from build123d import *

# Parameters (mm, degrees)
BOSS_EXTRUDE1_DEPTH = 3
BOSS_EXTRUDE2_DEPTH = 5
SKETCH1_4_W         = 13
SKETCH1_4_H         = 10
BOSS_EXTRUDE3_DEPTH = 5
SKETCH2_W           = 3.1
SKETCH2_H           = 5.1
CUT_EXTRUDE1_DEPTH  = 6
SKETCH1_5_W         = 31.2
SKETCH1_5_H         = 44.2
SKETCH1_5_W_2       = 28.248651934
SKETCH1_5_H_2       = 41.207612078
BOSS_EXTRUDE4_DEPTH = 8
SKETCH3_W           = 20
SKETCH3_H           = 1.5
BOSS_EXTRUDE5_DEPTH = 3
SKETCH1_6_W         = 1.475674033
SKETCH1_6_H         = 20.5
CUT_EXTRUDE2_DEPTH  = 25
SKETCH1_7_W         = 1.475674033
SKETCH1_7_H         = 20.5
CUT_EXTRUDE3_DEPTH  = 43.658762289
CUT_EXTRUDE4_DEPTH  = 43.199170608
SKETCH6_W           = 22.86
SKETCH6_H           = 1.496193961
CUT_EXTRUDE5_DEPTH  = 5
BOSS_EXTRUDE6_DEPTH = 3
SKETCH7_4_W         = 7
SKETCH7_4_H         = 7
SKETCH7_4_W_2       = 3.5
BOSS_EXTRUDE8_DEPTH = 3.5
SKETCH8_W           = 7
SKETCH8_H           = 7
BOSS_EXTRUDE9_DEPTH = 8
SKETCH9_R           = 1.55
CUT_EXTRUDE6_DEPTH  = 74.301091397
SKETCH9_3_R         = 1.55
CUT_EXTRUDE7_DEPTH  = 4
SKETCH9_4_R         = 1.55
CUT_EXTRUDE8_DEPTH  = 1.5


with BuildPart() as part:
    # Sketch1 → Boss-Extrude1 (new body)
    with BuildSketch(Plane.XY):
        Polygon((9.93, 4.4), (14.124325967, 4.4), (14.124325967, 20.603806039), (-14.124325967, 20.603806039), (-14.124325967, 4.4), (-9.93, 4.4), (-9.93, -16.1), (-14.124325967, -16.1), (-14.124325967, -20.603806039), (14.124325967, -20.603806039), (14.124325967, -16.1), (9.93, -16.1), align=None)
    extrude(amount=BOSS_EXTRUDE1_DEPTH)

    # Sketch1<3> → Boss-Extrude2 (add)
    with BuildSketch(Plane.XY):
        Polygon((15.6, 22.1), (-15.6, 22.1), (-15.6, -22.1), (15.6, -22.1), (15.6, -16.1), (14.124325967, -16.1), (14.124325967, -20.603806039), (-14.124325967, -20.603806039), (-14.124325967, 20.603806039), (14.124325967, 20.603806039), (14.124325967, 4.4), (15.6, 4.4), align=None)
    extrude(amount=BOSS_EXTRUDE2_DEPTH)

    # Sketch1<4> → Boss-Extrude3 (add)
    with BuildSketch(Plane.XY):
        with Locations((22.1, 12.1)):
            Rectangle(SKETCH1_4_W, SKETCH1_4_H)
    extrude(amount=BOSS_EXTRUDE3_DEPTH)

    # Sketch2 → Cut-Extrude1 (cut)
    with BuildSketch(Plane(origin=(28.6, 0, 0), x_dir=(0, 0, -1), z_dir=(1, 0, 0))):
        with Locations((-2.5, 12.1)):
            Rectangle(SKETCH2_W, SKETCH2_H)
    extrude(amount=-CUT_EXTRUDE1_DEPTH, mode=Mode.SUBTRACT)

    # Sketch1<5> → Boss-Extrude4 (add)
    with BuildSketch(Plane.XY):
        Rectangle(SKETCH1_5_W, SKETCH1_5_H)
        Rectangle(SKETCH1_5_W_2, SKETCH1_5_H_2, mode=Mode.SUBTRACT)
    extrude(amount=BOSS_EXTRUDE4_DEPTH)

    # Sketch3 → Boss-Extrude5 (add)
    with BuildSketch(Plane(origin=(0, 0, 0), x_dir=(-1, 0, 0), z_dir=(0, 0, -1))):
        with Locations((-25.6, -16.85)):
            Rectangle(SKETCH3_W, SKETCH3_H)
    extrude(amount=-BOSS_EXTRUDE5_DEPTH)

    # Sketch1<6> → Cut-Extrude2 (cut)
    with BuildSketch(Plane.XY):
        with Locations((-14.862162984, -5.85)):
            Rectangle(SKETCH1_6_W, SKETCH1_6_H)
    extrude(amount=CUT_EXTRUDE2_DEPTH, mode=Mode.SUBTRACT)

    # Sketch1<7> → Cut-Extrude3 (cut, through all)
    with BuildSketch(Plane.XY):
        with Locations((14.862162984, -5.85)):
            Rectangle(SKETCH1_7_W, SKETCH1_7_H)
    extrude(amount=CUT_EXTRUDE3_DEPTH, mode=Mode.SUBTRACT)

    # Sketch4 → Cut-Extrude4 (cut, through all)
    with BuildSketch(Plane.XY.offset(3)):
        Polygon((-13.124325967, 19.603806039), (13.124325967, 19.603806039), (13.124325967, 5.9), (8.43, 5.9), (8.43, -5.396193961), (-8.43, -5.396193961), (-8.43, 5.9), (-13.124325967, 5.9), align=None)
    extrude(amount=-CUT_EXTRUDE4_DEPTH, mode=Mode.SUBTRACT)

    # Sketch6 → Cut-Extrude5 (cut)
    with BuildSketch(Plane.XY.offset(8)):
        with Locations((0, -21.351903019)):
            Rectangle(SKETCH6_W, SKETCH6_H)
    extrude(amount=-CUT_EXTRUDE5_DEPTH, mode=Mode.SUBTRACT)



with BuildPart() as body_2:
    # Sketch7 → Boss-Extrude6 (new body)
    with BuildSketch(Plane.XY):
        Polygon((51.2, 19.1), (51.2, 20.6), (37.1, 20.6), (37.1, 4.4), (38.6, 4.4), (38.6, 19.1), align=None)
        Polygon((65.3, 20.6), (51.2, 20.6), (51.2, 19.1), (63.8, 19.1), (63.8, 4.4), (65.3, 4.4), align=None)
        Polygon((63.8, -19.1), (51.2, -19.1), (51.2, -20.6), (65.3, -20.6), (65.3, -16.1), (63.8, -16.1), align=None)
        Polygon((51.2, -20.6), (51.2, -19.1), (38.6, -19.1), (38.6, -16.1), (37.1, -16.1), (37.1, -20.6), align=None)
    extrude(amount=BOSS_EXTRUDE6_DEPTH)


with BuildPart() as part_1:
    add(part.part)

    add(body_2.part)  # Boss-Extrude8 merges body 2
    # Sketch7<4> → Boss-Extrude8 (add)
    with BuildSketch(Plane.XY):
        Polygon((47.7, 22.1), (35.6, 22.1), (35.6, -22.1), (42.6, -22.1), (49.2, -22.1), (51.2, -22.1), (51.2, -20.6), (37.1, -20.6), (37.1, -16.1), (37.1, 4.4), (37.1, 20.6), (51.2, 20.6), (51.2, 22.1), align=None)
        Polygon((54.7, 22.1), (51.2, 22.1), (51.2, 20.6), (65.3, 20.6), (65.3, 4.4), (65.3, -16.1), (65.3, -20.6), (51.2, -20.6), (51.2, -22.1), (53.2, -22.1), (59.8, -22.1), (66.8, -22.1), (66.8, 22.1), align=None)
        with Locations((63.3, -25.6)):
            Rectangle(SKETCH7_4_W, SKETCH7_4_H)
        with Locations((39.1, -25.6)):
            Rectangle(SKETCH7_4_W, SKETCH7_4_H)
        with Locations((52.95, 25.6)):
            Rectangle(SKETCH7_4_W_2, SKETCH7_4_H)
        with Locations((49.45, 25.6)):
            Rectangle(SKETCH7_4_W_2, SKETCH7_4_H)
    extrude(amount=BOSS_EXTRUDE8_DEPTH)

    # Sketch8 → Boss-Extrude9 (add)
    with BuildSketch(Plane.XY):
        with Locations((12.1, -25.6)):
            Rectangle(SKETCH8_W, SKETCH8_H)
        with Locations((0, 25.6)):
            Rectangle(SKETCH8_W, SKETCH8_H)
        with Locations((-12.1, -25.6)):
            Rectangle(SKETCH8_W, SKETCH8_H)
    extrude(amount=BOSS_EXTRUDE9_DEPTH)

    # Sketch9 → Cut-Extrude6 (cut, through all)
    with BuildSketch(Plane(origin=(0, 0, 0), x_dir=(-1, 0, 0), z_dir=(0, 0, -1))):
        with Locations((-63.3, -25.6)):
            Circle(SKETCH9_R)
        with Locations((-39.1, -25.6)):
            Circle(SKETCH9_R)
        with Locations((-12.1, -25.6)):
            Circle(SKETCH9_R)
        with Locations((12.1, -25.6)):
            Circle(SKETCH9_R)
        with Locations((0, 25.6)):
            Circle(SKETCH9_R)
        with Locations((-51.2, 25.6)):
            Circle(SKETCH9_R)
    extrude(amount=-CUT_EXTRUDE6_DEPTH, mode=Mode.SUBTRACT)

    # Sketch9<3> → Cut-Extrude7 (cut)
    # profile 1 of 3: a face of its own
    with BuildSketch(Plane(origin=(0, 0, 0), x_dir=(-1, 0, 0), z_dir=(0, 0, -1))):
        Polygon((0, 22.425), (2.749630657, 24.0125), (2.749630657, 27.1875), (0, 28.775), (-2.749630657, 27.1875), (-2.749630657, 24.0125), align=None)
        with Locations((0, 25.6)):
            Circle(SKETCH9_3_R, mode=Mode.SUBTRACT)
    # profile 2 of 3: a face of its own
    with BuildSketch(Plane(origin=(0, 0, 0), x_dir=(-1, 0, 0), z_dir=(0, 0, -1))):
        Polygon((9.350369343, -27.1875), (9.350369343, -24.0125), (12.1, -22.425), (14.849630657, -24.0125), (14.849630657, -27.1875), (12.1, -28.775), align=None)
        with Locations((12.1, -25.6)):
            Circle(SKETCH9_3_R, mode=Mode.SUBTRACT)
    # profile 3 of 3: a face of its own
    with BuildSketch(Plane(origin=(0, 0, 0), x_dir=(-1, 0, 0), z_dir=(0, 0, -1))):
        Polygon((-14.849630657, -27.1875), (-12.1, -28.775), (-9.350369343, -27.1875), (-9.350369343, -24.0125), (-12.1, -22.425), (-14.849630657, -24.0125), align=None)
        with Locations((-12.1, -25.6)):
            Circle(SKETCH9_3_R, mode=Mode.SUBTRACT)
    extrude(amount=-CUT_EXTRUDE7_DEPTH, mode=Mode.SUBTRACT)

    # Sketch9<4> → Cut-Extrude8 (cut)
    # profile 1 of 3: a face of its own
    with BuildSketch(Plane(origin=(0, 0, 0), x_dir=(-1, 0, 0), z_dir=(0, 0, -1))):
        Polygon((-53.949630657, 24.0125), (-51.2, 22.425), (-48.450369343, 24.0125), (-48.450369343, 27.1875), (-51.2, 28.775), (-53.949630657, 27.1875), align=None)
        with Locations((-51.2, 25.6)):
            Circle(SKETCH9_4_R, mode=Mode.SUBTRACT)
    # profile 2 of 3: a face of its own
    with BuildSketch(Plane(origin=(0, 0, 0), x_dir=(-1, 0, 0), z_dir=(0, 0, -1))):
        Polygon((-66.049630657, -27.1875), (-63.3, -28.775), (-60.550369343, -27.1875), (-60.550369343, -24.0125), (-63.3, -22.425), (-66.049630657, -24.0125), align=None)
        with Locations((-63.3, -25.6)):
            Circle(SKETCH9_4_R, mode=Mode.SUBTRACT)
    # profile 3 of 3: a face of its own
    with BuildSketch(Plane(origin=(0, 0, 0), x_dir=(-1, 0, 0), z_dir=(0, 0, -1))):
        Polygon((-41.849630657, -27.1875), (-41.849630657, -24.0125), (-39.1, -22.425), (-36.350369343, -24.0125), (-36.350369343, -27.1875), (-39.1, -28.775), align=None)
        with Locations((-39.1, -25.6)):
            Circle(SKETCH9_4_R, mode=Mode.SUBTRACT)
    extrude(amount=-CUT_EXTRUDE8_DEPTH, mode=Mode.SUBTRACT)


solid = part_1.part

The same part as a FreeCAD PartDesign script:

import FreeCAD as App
import Part
import Sketcher
Q = App.Units.Quantity


def add_polygon(sketch, points):
    """Adds a closed chain of lines whose ends are joined by coincident constraints."""
    first, n = sketch.GeometryCount, len(points)
    for a, b in zip(points, points[1:] + points[:1]):
        sketch.addGeometry(Part.LineSegment(App.Vector(*a, 0), App.Vector(*b, 0)), False)
    for i in range(n):
        sketch.addConstraint(Sketcher.Constraint("Coincident", first + i, 2, first + (i + 1) % n, 1))

doc = App.newDocument("Part")
body = doc.addObject("PartDesign::Body", "Body")

# Sketch on XY plane
sketch1 = body.newObject("Sketcher::SketchObject", "Sketch")
sketch1.AttachmentSupport = (doc.getObject("XY_Plane"), [""])
sketch1.MapMode = "FlatFace"
add_polygon(sketch1, [(9.93, 4.4), (14.124326, 4.4), (14.124326, 20.603806), (-14.124326, 20.603806), (-14.124326, 4.4), (-9.93, 4.4), (-9.93, -16.1), (-14.124326, -16.1), (-14.124326, -20.603806), (14.124326, -20.603806), (14.124326, -16.1), (9.93, -16.1)])  # lines 0-11
sketch1.addConstraint(Sketcher.Constraint("Horizontal", 0))
sketch1.addConstraint(Sketcher.Constraint("Vertical", 1))
sketch1.addConstraint(Sketcher.Constraint("Horizontal", 2))
sketch1.addConstraint(Sketcher.Constraint("Vertical", 3))
sketch1.addConstraint(Sketcher.Constraint("Horizontal", 4))
sketch1.addConstraint(Sketcher.Constraint("Vertical", 5))
sketch1.addConstraint(Sketcher.Constraint("Horizontal", 6))
sketch1.addConstraint(Sketcher.Constraint("Vertical", 7))
sketch1.addConstraint(Sketcher.Constraint("Horizontal", 8))
sketch1.addConstraint(Sketcher.Constraint("Vertical", 9))
sketch1.addConstraint(Sketcher.Constraint("Horizontal", 10))
sketch1.addConstraint(Sketcher.Constraint("Vertical", 11))
sketch1.addConstraint(Sketcher.Constraint("Symmetric", 1, 2, 7, 2, -1, 1))
sketch1.addConstraint(Sketcher.Constraint("Symmetric", 0, 2, 3, 2, -2))
sketch1.addConstraint(Sketcher.Constraint("Symmetric", 6, 2, 9, 2, -2))
sketch1.addConstraint(Sketcher.Constraint("Equal", 0, 4))
sketch1.addConstraint(Sketcher.Constraint("DistanceY", 5, 2, 5, 1, 20.5))
sketch1.addConstraint(Sketcher.Constraint("DistanceY", -1, 1, 0, 2, 4.4))
sketch1.addConstraint(Sketcher.Constraint("DistanceX", 4, 2, -1, 1, 9.93))
sketch1.addConstraint(Sketcher.Constraint("DistanceX", 2, 2, 2, 1, 28.248652))
sketch1.addConstraint(Sketcher.Constraint("DistanceY", 1, 1, 1, 2, 16.203806))
pad1 = body.newObject("PartDesign::Pad", "Pad")
pad1.Profile = sketch1
pad1.Length = 3

# Sketch on XY plane
sketch2 = body.newObject("Sketcher::SketchObject", "Sketch001")
sketch2.AttachmentSupport = (doc.getObject("XY_Plane"), [""])
sketch2.MapMode = "FlatFace"
add_polygon(sketch2, [(15.6, 22.1), (-15.6, 22.1), (-15.6, -22.1), (15.6, -22.1), (15.6, -16.1), (14.124326, -16.1), (14.124326, -20.603806), (-14.124326, -20.603806), (-14.124326, 20.603806), (14.124326, 20.603806), (14.124326, 4.4), (15.6, 4.4)])  # lines 0-11
sketch2.addConstraint(Sketcher.Constraint("Horizontal", 0))
sketch2.addConstraint(Sketcher.Constraint("Vertical", 1))
sketch2.addConstraint(Sketcher.Constraint("Horizontal", 2))
sketch2.addConstraint(Sketcher.Constraint("Vertical", 3))
sketch2.addConstraint(Sketcher.Constraint("Horizontal", 4))
sketch2.addConstraint(Sketcher.Constraint("Vertical", 5))
sketch2.addConstraint(Sketcher.Constraint("Horizontal", 6))
sketch2.addConstraint(Sketcher.Constraint("Vertical", 7))
sketch2.addConstraint(Sketcher.Constraint("Horizontal", 8))
sketch2.addConstraint(Sketcher.Constraint("Vertical", 9))
sketch2.addConstraint(Sketcher.Constraint("Horizontal", 10))
sketch2.addConstraint(Sketcher.Constraint("Vertical", 11))
sketch2.addConstraint(Sketcher.Constraint("Symmetric", 0, 2, 2, 2, -1, 1))
sketch2.addConstraint(Sketcher.Constraint("Symmetric", 5, 2, 7, 2, -1, 1))
sketch2.addConstraint(Sketcher.Constraint("Vertical", 5, 2, 8, 2))
sketch2.addConstraint(Sketcher.Constraint("Vertical", 3, 2, 10, 2))
sketch2.addConstraint(Sketcher.Constraint("DistanceY", 3, 1, 3, 2, 6.0))
sketch2.addConstraint(Sketcher.Constraint("DistanceX", 0, 2, 0, 1, 31.2))
sketch2.addConstraint(Sketcher.Constraint("DistanceY", 1, 2, 1, 1, 44.2))
sketch2.addConstraint(Sketcher.Constraint("DistanceY", 11, 1, 11, 2, 17.7))
sketch2.addConstraint(Sketcher.Constraint("DistanceX", 6, 2, 6, 1, 28.248652))
sketch2.addConstraint(Sketcher.Constraint("DistanceY", 5, 2, 5, 1, 4.503806))
pad2 = body.newObject("PartDesign::Pad", "Pad001")
pad2.Profile = sketch2
pad2.Length = 5

# Sketch on XY plane
sketch3 = body.newObject("Sketcher::SketchObject", "Sketch002")
sketch3.AttachmentSupport = (doc.getObject("XY_Plane"), [""])
sketch3.MapMode = "FlatFace"
add_polygon(sketch3, [(15.6, 17.1), (15.6, 7.1), (28.6, 7.1), (28.6, 17.1)])  # lines 0-3
sketch3.addConstraint(Sketcher.Constraint("Vertical", 0))
sketch3.addConstraint(Sketcher.Constraint("Horizontal", 1))
sketch3.addConstraint(Sketcher.Constraint("Vertical", 2))
sketch3.addConstraint(Sketcher.Constraint("Horizontal", 3))
sketch3.addConstraint(Sketcher.Constraint("DistanceX", 1, 1, 1, 2, 13.0))
sketch3.addConstraint(Sketcher.Constraint("DistanceY", 0, 2, 0, 1, 10.0))
sketch3.addConstraint(Sketcher.Constraint("DistanceX", -1, 1, 0, 2, 15.6))
sketch3.addConstraint(Sketcher.Constraint("DistanceY", -1, 1, 0, 2, 7.1))
pad3 = body.newObject("PartDesign::Pad", "Pad002")
pad3.Profile = sketch3
pad3.Length = 5

# Sketch on YZ plane
sketch4 = body.newObject("Sketcher::SketchObject", "Sketch003")
sketch4.AttachmentSupport = (doc.getObject("YZ_Plane"), [""])
sketch4.MapMode = "FlatFace"
sketch4.AttachmentOffset = App.Placement(App.Vector(0, 0, 28.6), App.Rotation())
add_polygon(sketch4, [(14.65, 4.05), (9.55, 4.05), (9.55, 0.95), (14.65, 0.95)])  # lines 0-3
sketch4.addConstraint(Sketcher.Constraint("Horizontal", 0))
sketch4.addConstraint(Sketcher.Constraint("Vertical", 1))
sketch4.addConstraint(Sketcher.Constraint("Horizontal", 2))
sketch4.addConstraint(Sketcher.Constraint("Vertical", 3))
sketch4.addConstraint(Sketcher.Constraint("DistanceX", 0, 2, 0, 1, 5.1))
sketch4.addConstraint(Sketcher.Constraint("DistanceY", 1, 2, 1, 1, 3.1))
sketch4.addConstraint(Sketcher.Constraint("DistanceX", -1, 1, 0, 2, 9.55))
sketch4.addConstraint(Sketcher.Constraint("DistanceY", -1, 1, 0, 2, 4.05))
pocket1 = body.newObject("PartDesign::Pocket", "Pocket")
pocket1.Profile = sketch4
pocket1.Length = 6

# Sketch on XY plane
sketch5 = body.newObject("Sketcher::SketchObject", "Sketch004")
sketch5.AttachmentSupport = (doc.getObject("XY_Plane"), [""])
sketch5.MapMode = "FlatFace"
add_polygon(sketch5, [(-15.6, 22.1), (-15.6, -22.1), (15.6, -22.1), (15.6, 22.1)])  # lines 0-3
add_polygon(sketch5, [(14.124326, -20.603806), (-14.124326, -20.603806), (-14.124326, 20.603806), (14.124326, 20.603806)])  # lines 4-7
sketch5.addConstraint(Sketcher.Constraint("Vertical", 0))
sketch5.addConstraint(Sketcher.Constraint("Horizontal", 1))
sketch5.addConstraint(Sketcher.Constraint("Vertical", 2))
sketch5.addConstraint(Sketcher.Constraint("Horizontal", 3))
sketch5.addConstraint(Sketcher.Constraint("Horizontal", 4))
sketch5.addConstraint(Sketcher.Constraint("Vertical", 5))
sketch5.addConstraint(Sketcher.Constraint("Horizontal", 6))
sketch5.addConstraint(Sketcher.Constraint("Vertical", 7))
sketch5.addConstraint(Sketcher.Constraint("Symmetric", 0, 2, 2, 2, -1, 1))
sketch5.addConstraint(Sketcher.Constraint("Symmetric", 4, 2, 6, 2, -1, 1))
sketch5.addConstraint(Sketcher.Constraint("DistanceX", 1, 1, 1, 2, 31.2))
sketch5.addConstraint(Sketcher.Constraint("DistanceY", 0, 2, 0, 1, 44.2))
sketch5.addConstraint(Sketcher.Constraint("DistanceX", 4, 2, 4, 1, 28.248652))
sketch5.addConstraint(Sketcher.Constraint("DistanceY", 5, 1, 5, 2, 41.207612))
pad4 = body.newObject("PartDesign::Pad", "Pad003")
pad4.Profile = sketch5
pad4.Length = 8

# Sketch on XY plane
sketch6 = body.newObject("Sketcher::SketchObject", "Sketch005")
sketch6.AttachmentSupport = (doc.getObject("XY_Plane"), [""])
sketch6.MapMode = "FlatFace"
add_polygon(sketch6, [(35.6, -16.1), (35.6, -17.6), (15.6, -17.6), (15.6, -16.1)])  # lines 0-3
sketch6.addConstraint(Sketcher.Constraint("Vertical", 0))
sketch6.addConstraint(Sketcher.Constraint("Horizontal", 1))
sketch6.addConstraint(Sketcher.Constraint("Vertical", 2))
sketch6.addConstraint(Sketcher.Constraint("Horizontal", 3))
sketch6.addConstraint(Sketcher.Constraint("DistanceX", 1, 2, 1, 1, 20.0))
sketch6.addConstraint(Sketcher.Constraint("DistanceY", 0, 2, 0, 1, 1.5))
sketch6.addConstraint(Sketcher.Constraint("DistanceX", -1, 1, 0, 2, 35.6))
sketch6.addConstraint(Sketcher.Constraint("DistanceY", 0, 2, -1, 1, 17.6))
pad5 = body.newObject("PartDesign::Pad", "Pad004")
pad5.Profile = sketch6
pad5.Length = 3

# Sketch on XY plane
sketch7 = body.newObject("Sketcher::SketchObject", "Sketch006")
sketch7.AttachmentSupport = (doc.getObject("XY_Plane"), [""])
sketch7.MapMode = "FlatFace"
add_polygon(sketch7, [(-15.6, 4.4), (-15.6, -16.1), (-14.124326, -16.1), (-14.124326, 4.4)])  # lines 0-3
sketch7.addConstraint(Sketcher.Constraint("Vertical", 0))
sketch7.addConstraint(Sketcher.Constraint("Horizontal", 1))
sketch7.addConstraint(Sketcher.Constraint("Vertical", 2))
sketch7.addConstraint(Sketcher.Constraint("Horizontal", 3))
sketch7.addConstraint(Sketcher.Constraint("DistanceY", 0, 2, 0, 1, 20.5))
sketch7.addConstraint(Sketcher.Constraint("DistanceX", 0, 2, -1, 1, 15.6))
sketch7.addConstraint(Sketcher.Constraint("DistanceY", 0, 2, -1, 1, 16.1))
sketch7.addConstraint(Sketcher.Constraint("DistanceX", 1, 1, 1, 2, 1.475674))
pocket2 = body.newObject("PartDesign::Pocket", "Pocket001")
pocket2.Profile = sketch7
pocket2.Length = 25
pocket2.Reversed = True

# Sketch on XY plane
sketch8 = body.newObject("Sketcher::SketchObject", "Sketch007")
sketch8.AttachmentSupport = (doc.getObject("XY_Plane"), [""])
sketch8.MapMode = "FlatFace"
add_polygon(sketch8, [(14.124326, 4.4), (14.124326, -16.1), (15.6, -16.1), (15.6, 4.4)])  # lines 0-3
sketch8.addConstraint(Sketcher.Constraint("Vertical", 0))
sketch8.addConstraint(Sketcher.Constraint("Horizontal", 1))
sketch8.addConstraint(Sketcher.Constraint("Vertical", 2))
sketch8.addConstraint(Sketcher.Constraint("Horizontal", 3))
sketch8.addConstraint(Sketcher.Constraint("DistanceY", 0, 2, 0, 1, 20.5))
sketch8.addConstraint(Sketcher.Constraint("DistanceY", 0, 2, -1, 1, 16.1))
sketch8.addConstraint(Sketcher.Constraint("DistanceX", -1, 1, 1, 2, 15.6))
sketch8.addConstraint(Sketcher.Constraint("DistanceX", 1, 1, 1, 2, 1.475674))
pocket3 = body.newObject("PartDesign::Pocket", "Pocket002")
pocket3.Profile = sketch8
pocket3.Type = "ThroughAll"
pocket3.Reversed = True

# Sketch on XY plane
sketch9 = body.newObject("Sketcher::SketchObject", "Sketch008")
sketch9.AttachmentSupport = (doc.getObject("XY_Plane"), [""])
sketch9.MapMode = "FlatFace"
sketch9.AttachmentOffset = App.Placement(App.Vector(0, 0, 3), App.Rotation())
add_polygon(sketch9, [(13.124326, 19.603806), (-13.124326, 19.603806), (-13.124326, 5.9), (-8.43, 5.9), (-8.43, -5.396194), (8.43, -5.396194), (8.43, 5.9), (13.124326, 5.9)])  # lines 0-7
sketch9.addConstraint(Sketcher.Constraint("Horizontal", 0))
sketch9.addConstraint(Sketcher.Constraint("Vertical", 1))
sketch9.addConstraint(Sketcher.Constraint("Horizontal", 2))
sketch9.addConstraint(Sketcher.Constraint("Vertical", 3))
sketch9.addConstraint(Sketcher.Constraint("Horizontal", 4))
sketch9.addConstraint(Sketcher.Constraint("Vertical", 5))
sketch9.addConstraint(Sketcher.Constraint("Horizontal", 6))
sketch9.addConstraint(Sketcher.Constraint("Vertical", 7))
sketch9.addConstraint(Sketcher.Constraint("Symmetric", 2, 2, 5, 2, -2))
sketch9.addConstraint(Sketcher.Constraint("Equal", 2, 6))
sketch9.addConstraint(Sketcher.Constraint("DistanceY", 3, 2, 0, 2, 25.0))
sketch9.addConstraint(Sketcher.Constraint("DistanceX", 4, 1, 4, 2, 16.86))
sketch9.addConstraint(Sketcher.Constraint("DistanceY", -1, 1, 1, 2, 5.9))
sketch9.addConstraint(Sketcher.Constraint("DistanceX", 0, 2, 0, 1, 26.248652))
sketch9.addConstraint(Sketcher.Constraint("DistanceY", 1, 2, 1, 1, 13.703806))
pocket4 = body.newObject("PartDesign::Pocket", "Pocket003")
pocket4.Profile = sketch9
pocket4.Type = "ThroughAll"

# Sketch on XY plane
sketch10 = body.newObject("Sketcher::SketchObject", "Sketch009")
sketch10.AttachmentSupport = (doc.getObject("XY_Plane"), [""])
sketch10.MapMode = "FlatFace"
sketch10.AttachmentOffset = App.Placement(App.Vector(0, 0, 8), App.Rotation())
add_polygon(sketch10, [(-11.43, -20.603806), (-11.43, -22.1), (11.43, -22.1), (11.43, -20.603806)])  # lines 0-3
sketch10.addConstraint(Sketcher.Constraint("Vertical", 0))
sketch10.addConstraint(Sketcher.Constraint("Horizontal", 1))
sketch10.addConstraint(Sketcher.Constraint("Vertical", 2))
sketch10.addConstraint(Sketcher.Constraint("Horizontal", 3))
sketch10.addConstraint(Sketcher.Constraint("DistanceX", 1, 1, 1, 2, 22.86))
sketch10.addConstraint(Sketcher.Constraint("DistanceY", 0, 2, -1, 1, 22.1))
sketch10.addConstraint(Sketcher.Constraint("DistanceX", 0, 2, -1, 1, 11.43))
sketch10.addConstraint(Sketcher.Constraint("DistanceY", 0, 2, 0, 1, 1.496194))
pocket5 = body.newObject("PartDesign::Pocket", "Pocket004")
pocket5.Profile = sketch10
pocket5.Length = 5
body2 = doc.addObject("PartDesign::Body", "Body001")
body2.AllowCompound = True

# Sketch on XY plane
sketch11 = body2.newObject("Sketcher::SketchObject", "Sketch010")
sketch11.AttachmentSupport = (doc.getObject("XY_Plane001"), [""])
sketch11.MapMode = "FlatFace"
add_polygon(sketch11, [(37.1, 20.6), (37.1, 4.4), (38.6, 4.4), (38.6, 19.1), (63.8, 19.1), (63.8, 4.4), (65.3, 4.4), (65.3, 20.6)])  # lines 0-7
add_polygon(sketch11, [(63.8, -19.1), (38.6, -19.1), (38.6, -16.1), (37.1, -16.1), (37.1, -20.6), (65.3, -20.6), (65.3, -16.1), (63.8, -16.1)])  # lines 8-15
sketch11.addConstraint(Sketcher.Constraint("Vertical", 0))
sketch11.addConstraint(Sketcher.Constraint("Horizontal", 1))
sketch11.addConstraint(Sketcher.Constraint("Vertical", 2))
sketch11.addConstraint(Sketcher.Constraint("Horizontal", 3))
sketch11.addConstraint(Sketcher.Constraint("Vertical", 4))
sketch11.addConstraint(Sketcher.Constraint("Horizontal", 5))
sketch11.addConstraint(Sketcher.Constraint("Vertical", 6))
sketch11.addConstraint(Sketcher.Constraint("Horizontal", 7))
sketch11.addConstraint(Sketcher.Constraint("Horizontal", 8))
sketch11.addConstraint(Sketcher.Constraint("Vertical", 9))
sketch11.addConstraint(Sketcher.Constraint("Horizontal", 10))
sketch11.addConstraint(Sketcher.Constraint("Vertical", 11))
sketch11.addConstraint(Sketcher.Constraint("Horizontal", 12))
sketch11.addConstraint(Sketcher.Constraint("Vertical", 13))
sketch11.addConstraint(Sketcher.Constraint("Horizontal", 14))
sketch11.addConstraint(Sketcher.Constraint("Vertical", 15))
sketch11.addConstraint(Sketcher.Constraint("Symmetric", 2, 2, 8, 2, -1))
sketch11.addConstraint(Sketcher.Constraint("Symmetric", 7, 2, 11, 2, -1))
sketch11.addConstraint(Sketcher.Constraint("Horizontal", 1, 2, 4, 2))
sketch11.addConstraint(Sketcher.Constraint("Horizontal", 10, 2, 13, 2))
sketch11.addConstraint(Sketcher.Constraint("Vertical", 6, 2, 12, 2))
sketch11.addConstraint(Sketcher.Constraint("Vertical", 4, 2, 14, 2))
sketch11.addConstraint(Sketcher.Constraint("Equal", 1, 5))
sketch11.addConstraint(Sketcher.Constraint("DistanceY", 9, 1, 9, 2, 3.0))
sketch11.addConstraint(Sketcher.Constraint("DistanceX", 1, 1, 1, 2, 1.5))
sketch11.addConstraint(Sketcher.Constraint("DistanceX", 3, 1, 3, 2, 25.2))
sketch11.addConstraint(Sketcher.Constraint("DistanceY", 0, 2, 0, 1, 16.2))
sketch11.addConstraint(Sketcher.Constraint("DistanceY", 2, 1, 2, 2, 14.7))
sketch11.addConstraint(Sketcher.Constraint("DistanceY", 11, 2, 0, 2, 25.0))
sketch11.addConstraint(Sketcher.Constraint("DistanceX", -1, 1, 0, 2, 37.1))
pad6 = body2.newObject("PartDesign::Pad", "Pad005")
pad6.Profile = sketch11
pad6.Length = 3
body.AllowCompound = True
doc.recompute()

boolean = body.newObject("PartDesign::Boolean", "Boolean")
boolean.Type = "Fuse"
boolean.addObjects([body2])

# Sketch on XY plane
sketch12 = body.newObject("Sketcher::SketchObject", "Sketch011")
sketch12.AttachmentSupport = (doc.getObject("XY_Plane"), [""])
sketch12.MapMode = "FlatFace"
add_polygon(sketch12, [(35.6, 22.1), (35.6, -29.1), (42.6, -29.1), (42.6, -22.1), (59.8, -22.1), (59.8, -29.1), (66.8, -29.1), (66.8, 22.1), (54.7, 22.1), (54.7, 29.1), (47.7, 29.1), (47.7, 22.1)])  # lines 0-11
add_polygon(sketch12, [(37.1, -20.6), (37.1, 20.6), (65.3, 20.6), (65.3, -20.6)])  # lines 12-15
sketch12.addConstraint(Sketcher.Constraint("Vertical", 0))
sketch12.addConstraint(Sketcher.Constraint("Horizontal", 1))
sketch12.addConstraint(Sketcher.Constraint("Vertical", 2))
sketch12.addConstraint(Sketcher.Constraint("Horizontal", 3))
sketch12.addConstraint(Sketcher.Constraint("Vertical", 4))
sketch12.addConstraint(Sketcher.Constraint("Horizontal", 5))
sketch12.addConstraint(Sketcher.Constraint("Vertical", 6))
sketch12.addConstraint(Sketcher.Constraint("Horizontal", 7))
sketch12.addConstraint(Sketcher.Constraint("Vertical", 8))
sketch12.addConstraint(Sketcher.Constraint("Horizontal", 9))
sketch12.addConstraint(Sketcher.Constraint("Vertical", 10))
sketch12.addConstraint(Sketcher.Constraint("Horizontal", 11))
sketch12.addConstraint(Sketcher.Constraint("Vertical", 12))
sketch12.addConstraint(Sketcher.Constraint("Horizontal", 13))
sketch12.addConstraint(Sketcher.Constraint("Vertical", 14))
sketch12.addConstraint(Sketcher.Constraint("Horizontal", 15))
sketch12.addConstraint(Sketcher.Constraint("Horizontal", 1, 2, 4, 2))
sketch12.addConstraint(Sketcher.Constraint("Horizontal", 7, 2, 10, 2))
sketch12.addConstraint(Sketcher.Constraint("Equal", 1, 5))
sketch12.addConstraint(Sketcher.Constraint("Equal", 5, 9))
sketch12.addConstraint(Sketcher.Constraint("Equal", 7, 11))
sketch12.addConstraint(Sketcher.Constraint("Equal", 9, 2))
sketch12.addConstraint(Sketcher.Constraint("Equal", 4, 8))
sketch12.addConstraint(Sketcher.Constraint("DistanceX", 1, 1, 1, 2, 7.0))
sketch12.addConstraint(Sketcher.Constraint("DistanceX", 3, 1, 3, 2, 17.2))
sketch12.addConstraint(Sketcher.Constraint("DistanceX", 13, 1, 13, 2, 28.2))
sketch12.addConstraint(Sketcher.Constraint("DistanceY", 0, 2, 0, 1, 51.2))
sketch12.addConstraint(Sketcher.Constraint("DistanceY", 12, 1, 12, 2, 41.2))
sketch12.addConstraint(Sketcher.Constraint("DistanceX", -1, 1, 0, 2, 35.6))
sketch12.addConstraint(Sketcher.Constraint("DistanceY", 0, 2, -1, 1, 29.1))
sketch12.addConstraint(Sketcher.Constraint("DistanceX", -1, 1, 12, 2, 37.1))
sketch12.addConstraint(Sketcher.Constraint("DistanceY", -1, 1, 12, 2, 20.6))
pad7 = body.newObject("PartDesign::Pad", "Pad006")
pad7.Profile = sketch12
pad7.Length = 3.5

# Sketch on XY plane
sketch13 = body.newObject("Sketcher::SketchObject", "Sketch012")
sketch13.AttachmentSupport = (doc.getObject("XY_Plane"), [""])
sketch13.MapMode = "FlatFace"
add_polygon(sketch13, [(8.6, -22.1), (8.6, -29.1), (15.6, -29.1), (15.6, -22.1)])  # lines 0-3
add_polygon(sketch13, [(-3.5, 29.1), (-3.5, 22.1), (3.5, 22.1), (3.5, 29.1)])  # lines 4-7
add_polygon(sketch13, [(-15.6, -22.1), (-15.6, -29.1), (-8.6, -29.1), (-8.6, -22.1)])  # lines 8-11
sketch13.addConstraint(Sketcher.Constraint("Vertical", 0))
sketch13.addConstraint(Sketcher.Constraint("Horizontal", 1))
sketch13.addConstraint(Sketcher.Constraint("Vertical", 2))
sketch13.addConstraint(Sketcher.Constraint("Horizontal", 3))
sketch13.addConstraint(Sketcher.Constraint("Vertical", 4))
sketch13.addConstraint(Sketcher.Constraint("Horizontal", 5))
sketch13.addConstraint(Sketcher.Constraint("Vertical", 6))
sketch13.addConstraint(Sketcher.Constraint("Horizontal", 7))
sketch13.addConstraint(Sketcher.Constraint("Vertical", 8))
sketch13.addConstraint(Sketcher.Constraint("Horizontal", 9))
sketch13.addConstraint(Sketcher.Constraint("Vertical", 10))
sketch13.addConstraint(Sketcher.Constraint("Horizontal", 11))
sketch13.addConstraint(Sketcher.Constraint("Symmetric", 1, 2, 8, 2, -2))
sketch13.addConstraint(Sketcher.Constraint("Symmetric", 3, 2, 10, 2, -2))
sketch13.addConstraint(Sketcher.Constraint("Equal", 3, 5))
sketch13.addConstraint(Sketcher.Constraint("Equal", 11, 0))
sketch13.addConstraint(Sketcher.Constraint("Equal", 2, 4))
sketch13.addConstraint(Sketcher.Constraint("DistanceX", 1, 1, 1, 2, 7.0))
sketch13.addConstraint(Sketcher.Constraint("DistanceX", -1, 1, 0, 2, 8.6))
sketch13.addConstraint(Sketcher.Constraint("DistanceY", 0, 2, -1, 1, 29.1))
sketch13.addConstraint(Sketcher.Constraint("DistanceX", 4, 2, -1, 1, 3.5))
sketch13.addConstraint(Sketcher.Constraint("DistanceY", -1, 1, 4, 2, 22.1))
pad8 = body.newObject("PartDesign::Pad", "Pad007")
pad8.Profile = sketch13
pad8.Length = 8

# Sketch on XY plane
sketch14 = body.newObject("Sketcher::SketchObject", "Sketch013")
sketch14.AttachmentSupport = (doc.getObject("XY_Plane"), [""])
sketch14.MapMode = "FlatFace"
sketch14.addGeometry(Part.Circle(App.Vector(63.3, -25.6, 0), App.Vector(0, 0, 1), 1.55), False)
sketch14.addGeometry(Part.Circle(App.Vector(39.1, -25.6, 0), App.Vector(0, 0, 1), 1.55), False)
sketch14.addGeometry(Part.Circle(App.Vector(12.1, -25.6, 0), App.Vector(0, 0, 1), 1.55), False)
sketch14.addGeometry(Part.Circle(App.Vector(-12.1, -25.6, 0), App.Vector(0, 0, 1), 1.55), False)
sketch14.addGeometry(Part.Circle(App.Vector(0, 25.6, 0), App.Vector(0, 0, 1), 1.55), False)
sketch14.addGeometry(Part.Circle(App.Vector(51.2, 25.6, 0), App.Vector(0, 0, 1), 1.55), False)
sketch14.addConstraint(Sketcher.Constraint("Equal", 0, 1))
sketch14.addConstraint(Sketcher.Constraint("Equal", 1, 2))
sketch14.addConstraint(Sketcher.Constraint("Equal", 2, 3))
sketch14.addConstraint(Sketcher.Constraint("Equal", 3, 4))
sketch14.addConstraint(Sketcher.Constraint("Equal", 4, 5))
sketch14.addConstraint(Sketcher.Constraint("Symmetric", 2, 3, 3, 3, -2))
sketch14.addConstraint(Sketcher.Constraint("PointOnObject", 4, 3, -2))
sketch14.addConstraint(Sketcher.Constraint("Horizontal", 0, 3, 1, 3))
sketch14.addConstraint(Sketcher.Constraint("Horizontal", 1, 3, 2, 3))
sketch14.addConstraint(Sketcher.Constraint("Horizontal", 4, 3, 5, 3))
sketch14.addConstraint(Sketcher.Constraint("Diameter", 0, 3.1))
sketch14.addConstraint(Sketcher.Constraint("DistanceX", 2, 3, 1, 3, 27.0))
sketch14.addConstraint(Sketcher.Constraint("DistanceX", -1, 1, 0, 3, 63.3))
sketch14.addConstraint(Sketcher.Constraint("DistanceY", 0, 3, -1, 1, 25.6))
sketch14.addConstraint(Sketcher.Constraint("DistanceX", -1, 1, 1, 3, 39.1))
sketch14.addConstraint(Sketcher.Constraint("DistanceY", -1, 1, 4, 3, 25.6))
sketch14.addConstraint(Sketcher.Constraint("DistanceX", -1, 1, 5, 3, 51.2))
pocket6 = body.newObject("PartDesign::Pocket", "Pocket005")
pocket6.Profile = sketch14
pocket6.Type = "ThroughAll"
pocket6.Reversed = True

# Sketch on XY plane
sketch15 = body.newObject("Sketcher::SketchObject", "Sketch014")
sketch15.AttachmentSupport = (doc.getObject("XY_Plane"), [""])
sketch15.MapMode = "FlatFace"
add_polygon(sketch15, [(0, 22.425), (-2.749631, 24.0125), (-2.749631, 27.1875), (0, 28.775), (2.749631, 27.1875), (2.749631, 24.0125)])  # lines 0-5
sketch15.addGeometry(Part.Circle(App.Vector(0, 25.6, 0), App.Vector(0, 0, 1), 1.55), False)  # 6
add_polygon(sketch15, [(-9.350369, -24.0125), (-9.350369, -27.1875), (-12.1, -28.775), (-14.849631, -27.1875), (-14.849631, -24.0125), (-12.1, -22.425)])  # lines 7-12
sketch15.addGeometry(Part.Circle(App.Vector(-12.1, -25.6, 0), App.Vector(0, 0, 1), 1.55), False)  # 13
add_polygon(sketch15, [(14.849631, -27.1875), (12.1, -28.775), (9.350369, -27.1875), (9.350369, -24.0125), (12.1, -22.425), (14.849631, -24.0125)])  # lines 14-19
sketch15.addGeometry(Part.Circle(App.Vector(12.1, -25.6, 0), App.Vector(0, 0, 1), 1.55), False)  # 20
sketch15.addConstraint(Sketcher.Constraint("Vertical", 1))
sketch15.addConstraint(Sketcher.Constraint("Vertical", 4))
sketch15.addConstraint(Sketcher.Constraint("Vertical", 7))
sketch15.addConstraint(Sketcher.Constraint("Vertical", 10))
sketch15.addConstraint(Sketcher.Constraint("Vertical", 16))
sketch15.addConstraint(Sketcher.Constraint("Vertical", 19))
sketch15.addConstraint(Sketcher.Constraint("Equal", 6, 13))
sketch15.addConstraint(Sketcher.Constraint("Equal", 13, 20))
sketch15.addConstraint(Sketcher.Constraint("Symmetric", 13, 3, 20, 3, -2))
sketch15.addConstraint(Sketcher.Constraint("Symmetric", 1, 2, 3, 2, -2))
sketch15.addConstraint(Sketcher.Constraint("Symmetric", 8, 2, 14, 2, -2))
sketch15.addConstraint(Sketcher.Constraint("Symmetric", 7, 2, 15, 2, -2))
sketch15.addConstraint(Sketcher.Constraint("Symmetric", 11, 2, 17, 2, -2))
sketch15.addConstraint(Sketcher.Constraint("Symmetric", 10, 2, 18, 2, -2))
sketch15.addConstraint(Sketcher.Constraint("PointOnObject", 6, 3, -2))
sketch15.addConstraint(Sketcher.Constraint("PointOnObject", 2, 2, -2))
sketch15.addConstraint(Sketcher.Constraint("PointOnObject", 5, 2, -2))
sketch15.addConstraint(Sketcher.Constraint("Parallel", 0, 3))
sketch15.addConstraint(Sketcher.Constraint("Parallel", 2, 5))
sketch15.addConstraint(Sketcher.Constraint("Parallel", 5, 8))
sketch15.addConstraint(Sketcher.Constraint("Parallel", 3, 9))
sketch15.addConstraint(Sketcher.Constraint("Parallel", 8, 11))
sketch15.addConstraint(Sketcher.Constraint("Parallel", 9, 12))
sketch15.addConstraint(Sketcher.Constraint("Parallel", 11, 14))
sketch15.addConstraint(Sketcher.Constraint("Parallel", 14, 17))
sketch15.addConstraint(Sketcher.Constraint("Horizontal", 7, 2, 9, 2))
sketch15.addConstraint(Sketcher.Constraint("Horizontal", 10, 2, 12, 2))
sketch15.addConstraint(Sketcher.Constraint("Vertical", 13, 3, 8, 2))
sketch15.addConstraint(Sketcher.Constraint("Equal", 4, 7))
sketch15.addConstraint(Sketcher.Constraint("Equal", 5, 8))
sketch15.addConstraint(Sketcher.Constraint("Diameter", 6, 3.1))
sketch15.addConstraint(Sketcher.Constraint("Angle", 0, Q("150 deg")))
sketch15.addConstraint(Sketcher.Constraint("DistanceY", -1, 1, 6, 3, 25.6))
sketch15.addConstraint(Sketcher.Constraint("DistanceX", 13, 3, -1, 1, 12.1))
sketch15.addConstraint(Sketcher.Constraint("DistanceY", 13, 3, -1, 1, 25.6))
sketch15.addConstraint(Sketcher.Constraint("DistanceY", 7, 2, 0, 2, 51.2))
sketch15.addConstraint(Sketcher.Constraint("DistanceY", 1, 1, 1, 2, 3.175))
sketch15.addConstraint(Sketcher.Constraint("DistanceY", 8, 2, 11, 2, 6.35))
sketch15.addConstraint(Sketcher.Constraint("DistanceY", -1, 1, 2, 2, 28.775))
pocket7 = body.newObject("PartDesign::Pocket", "Pocket006")
pocket7.Profile = sketch15
pocket7.Length = 4
pocket7.Reversed = True

# Sketch on XY plane
sketch16 = body.newObject("Sketcher::SketchObject", "Sketch015")
sketch16.AttachmentSupport = (doc.getObject("XY_Plane"), [""])
sketch16.MapMode = "FlatFace"
add_polygon(sketch16, [(53.949631, 24.0125), (51.2, 22.425), (48.450369, 24.0125), (48.450369, 27.1875), (51.2, 28.775), (53.949631, 27.1875)])  # lines 0-5
sketch16.addGeometry(Part.Circle(App.Vector(51.2, 25.6, 0), App.Vector(0, 0, 1), 1.55), False)  # 6
add_polygon(sketch16, [(66.049631, -27.1875), (63.3, -28.775), (60.550369, -27.1875), (60.550369, -24.0125), (63.3, -22.425), (66.049631, -24.0125)])  # lines 7-12
sketch16.addGeometry(Part.Circle(App.Vector(63.3, -25.6, 0), App.Vector(0, 0, 1), 1.55), False)  # 13
add_polygon(sketch16, [(41.849631, -24.0125), (41.849631, -27.1875), (39.1, -28.775), (36.350369, -27.1875), (36.350369, -24.0125), (39.1, -22.425)])  # lines 14-19
sketch16.addGeometry(Part.Circle(App.Vector(39.1, -25.6, 0), App.Vector(0, 0, 1), 1.55), False)  # 20
sketch16.addConstraint(Sketcher.Constraint("Vertical", 2))
sketch16.addConstraint(Sketcher.Constraint("Vertical", 5))
sketch16.addConstraint(Sketcher.Constraint("Vertical", 9))
sketch16.addConstraint(Sketcher.Constraint("Vertical", 12))
sketch16.addConstraint(Sketcher.Constraint("Vertical", 14))
sketch16.addConstraint(Sketcher.Constraint("Vertical", 17))
sketch16.addConstraint(Sketcher.Constraint("Equal", 6, 13))
sketch16.addConstraint(Sketcher.Constraint("Equal", 13, 20))
sketch16.addConstraint(Sketcher.Constraint("Parallel", 0, 3))
sketch16.addConstraint(Sketcher.Constraint("Parallel", 1, 4))
sketch16.addConstraint(Sketcher.Constraint("Parallel", 3, 7))
sketch16.addConstraint(Sketcher.Constraint("Parallel", 4, 8))
sketch16.addConstraint(Sketcher.Constraint("Parallel", 7, 10))
sketch16.addConstraint(Sketcher.Constraint("Parallel", 8, 11))
sketch16.addConstraint(Sketcher.Constraint("Parallel", 10, 15))
sketch16.addConstraint(Sketcher.Constraint("Parallel", 11, 16))
sketch16.addConstraint(Sketcher.Constraint("Parallel", 15, 18))
sketch16.addConstraint(Sketcher.Constraint("Parallel", 16, 19))
sketch16.addConstraint(Sketcher.Constraint("Horizontal", 13, 3, 20, 3))
sketch16.addConstraint(Sketcher.Constraint("Horizontal", 2, 2, 4, 2))
sketch16.addConstraint(Sketcher.Constraint("Horizontal", 1, 2, 5, 2))
sketch16.addConstraint(Sketcher.Constraint("Horizontal", 9, 2, 11, 2))
sketch16.addConstraint(Sketcher.Constraint("Horizontal", 8, 2, 12, 2))
sketch16.addConstraint(Sketcher.Constraint("Horizontal", 12, 2, 14, 2))
sketch16.addConstraint(Sketcher.Constraint("Horizontal", 7, 2, 15, 2))
sketch16.addConstraint(Sketcher.Constraint("Horizontal", 14, 2, 16, 2))
sketch16.addConstraint(Sketcher.Constraint("Horizontal", 11, 2, 17, 2))
sketch16.addConstraint(Sketcher.Constraint("Horizontal", 10, 2, 18, 2))
sketch16.addConstraint(Sketcher.Constraint("Vertical", 6, 3, 0, 2))
sketch16.addConstraint(Sketcher.Constraint("Vertical", 0, 2, 3, 2))
sketch16.addConstraint(Sketcher.Constraint("Vertical", 13, 3, 7, 2))
sketch16.addConstraint(Sketcher.Constraint("Vertical", 20, 3, 15, 2))
sketch16.addConstraint(Sketcher.Constraint("Equal", 5, 9))
sketch16.addConstraint(Sketcher.Constraint("Equal", 4, 7))
sketch16.addConstraint(Sketcher.Constraint("Diameter", 6, 3.1))
sketch16.addConstraint(Sketcher.Constraint("Angle", 0, Q("-150 deg")))
sketch16.addConstraint(Sketcher.Constraint("DistanceX", -1, 1, 6, 3, 51.2))
sketch16.addConstraint(Sketcher.Constraint("DistanceY", -1, 1, 6, 3, 25.6))
sketch16.addConstraint(Sketcher.Constraint("DistanceX", -1, 1, 13, 3, 63.3))
sketch16.addConstraint(Sketcher.Constraint("DistanceY", 13, 3, -1, 1, 25.6))
sketch16.addConstraint(Sketcher.Constraint("DistanceX", -1, 1, 20, 3, 39.1))
sketch16.addConstraint(Sketcher.Constraint("DistanceY", 7, 2, 0, 2, 51.2))
sketch16.addConstraint(Sketcher.Constraint("DistanceY", 2, 1, 2, 2, 3.175))
sketch16.addConstraint(Sketcher.Constraint("DistanceY", 0, 2, 3, 2, 6.35))
sketch16.addConstraint(Sketcher.Constraint("DistanceY", -1, 1, 0, 2, 22.425))
pocket8 = body.newObject("PartDesign::Pocket", "Pocket007")
pocket8.Profile = sketch16
pocket8.Length = 1.5
pocket8.Reversed = True

doc.recompute()
